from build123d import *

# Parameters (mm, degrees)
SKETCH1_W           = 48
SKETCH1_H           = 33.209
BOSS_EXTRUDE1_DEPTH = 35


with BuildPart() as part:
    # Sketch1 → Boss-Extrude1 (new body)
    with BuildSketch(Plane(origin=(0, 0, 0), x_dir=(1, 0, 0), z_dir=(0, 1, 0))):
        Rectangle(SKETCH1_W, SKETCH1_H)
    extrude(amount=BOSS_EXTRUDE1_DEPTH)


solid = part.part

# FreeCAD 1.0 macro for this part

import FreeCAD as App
import Part
import Sketcher

V = App.Vector

doc = App.newDocument("Part")
params = doc.addObject("Spreadsheet::Sheet", "Params")
for row, (alias, value) in enumerate([
    ("sketch1_width", "48 mm"),
    ("pad1_length", "35 mm"),
], start=1):
    params.set(f"A{row}", alias)
    params.set(f"B{row}", "=" + value)
    params.setAlias(f"B{row}", alias)

body = doc.addObject("PartDesign::Body", "Body")

# Sketch on XZ plane
sketch1 = body.newObject("Sketcher::SketchObject", "Sketch")
sketch1.AttachmentSupport = (doc.getObject("XZ_Plane"), [""])
sketch1.MapMode = "FlatFace"
sketch1.addGeometry(Part.LineSegment(V(-24, -16.6045, 0), V(-24, 16.6045, 0)), False)
sketch1.addGeometry(Part.LineSegment(V(-24, 16.6045, 0), V(24, 16.6045, 0)), False)
sketch1.addGeometry(Part.LineSegment(V(24, 16.6045, 0), V(24, -16.6045, 0)), False)
sketch1.addGeometry(Part.LineSegment(V(24, -16.6045, 0), V(-24, -16.6045, 0)), False)
sketch1.addConstraint(Sketcher.Constraint("Coincident", 0, 2, 1, 1))
sketch1.addConstraint(Sketcher.Constraint("Coincident", 1, 2, 2, 1))
sketch1.addConstraint(Sketcher.Constraint("Coincident", 2, 2, 3, 1))
sketch1.addConstraint(Sketcher.Constraint("Coincident", 3, 2, 0, 1))
sketch1.addConstraint(Sketcher.Constraint("Vertical", 0))
sketch1.addConstraint(Sketcher.Constraint("Horizontal", 1))
sketch1.addConstraint(Sketcher.Constraint("Vertical", 2))
sketch1.addConstraint(Sketcher.Constraint("Horizontal", 3))
sketch1.addConstraint(Sketcher.Constraint("Symmetric", 0, 2, 2, 2, -1, 1))
sketch1.addConstraint(Sketcher.Constraint("DistanceX", 1, 1, 1, 2, 48.0))
sketch1.addConstraint(Sketcher.Constraint("DistanceY", 0, 1, 0, 2, 33.209))
sketch1.setExpression("Constraints[9]", "Params.sketch1_width")
pad1 = body.newObject("PartDesign::Pad", "Pad")
pad1.Profile = sketch1
pad1.setExpression("Length", "Params.pad1_length")
pad1.Reversed = True

doc.recompute()
